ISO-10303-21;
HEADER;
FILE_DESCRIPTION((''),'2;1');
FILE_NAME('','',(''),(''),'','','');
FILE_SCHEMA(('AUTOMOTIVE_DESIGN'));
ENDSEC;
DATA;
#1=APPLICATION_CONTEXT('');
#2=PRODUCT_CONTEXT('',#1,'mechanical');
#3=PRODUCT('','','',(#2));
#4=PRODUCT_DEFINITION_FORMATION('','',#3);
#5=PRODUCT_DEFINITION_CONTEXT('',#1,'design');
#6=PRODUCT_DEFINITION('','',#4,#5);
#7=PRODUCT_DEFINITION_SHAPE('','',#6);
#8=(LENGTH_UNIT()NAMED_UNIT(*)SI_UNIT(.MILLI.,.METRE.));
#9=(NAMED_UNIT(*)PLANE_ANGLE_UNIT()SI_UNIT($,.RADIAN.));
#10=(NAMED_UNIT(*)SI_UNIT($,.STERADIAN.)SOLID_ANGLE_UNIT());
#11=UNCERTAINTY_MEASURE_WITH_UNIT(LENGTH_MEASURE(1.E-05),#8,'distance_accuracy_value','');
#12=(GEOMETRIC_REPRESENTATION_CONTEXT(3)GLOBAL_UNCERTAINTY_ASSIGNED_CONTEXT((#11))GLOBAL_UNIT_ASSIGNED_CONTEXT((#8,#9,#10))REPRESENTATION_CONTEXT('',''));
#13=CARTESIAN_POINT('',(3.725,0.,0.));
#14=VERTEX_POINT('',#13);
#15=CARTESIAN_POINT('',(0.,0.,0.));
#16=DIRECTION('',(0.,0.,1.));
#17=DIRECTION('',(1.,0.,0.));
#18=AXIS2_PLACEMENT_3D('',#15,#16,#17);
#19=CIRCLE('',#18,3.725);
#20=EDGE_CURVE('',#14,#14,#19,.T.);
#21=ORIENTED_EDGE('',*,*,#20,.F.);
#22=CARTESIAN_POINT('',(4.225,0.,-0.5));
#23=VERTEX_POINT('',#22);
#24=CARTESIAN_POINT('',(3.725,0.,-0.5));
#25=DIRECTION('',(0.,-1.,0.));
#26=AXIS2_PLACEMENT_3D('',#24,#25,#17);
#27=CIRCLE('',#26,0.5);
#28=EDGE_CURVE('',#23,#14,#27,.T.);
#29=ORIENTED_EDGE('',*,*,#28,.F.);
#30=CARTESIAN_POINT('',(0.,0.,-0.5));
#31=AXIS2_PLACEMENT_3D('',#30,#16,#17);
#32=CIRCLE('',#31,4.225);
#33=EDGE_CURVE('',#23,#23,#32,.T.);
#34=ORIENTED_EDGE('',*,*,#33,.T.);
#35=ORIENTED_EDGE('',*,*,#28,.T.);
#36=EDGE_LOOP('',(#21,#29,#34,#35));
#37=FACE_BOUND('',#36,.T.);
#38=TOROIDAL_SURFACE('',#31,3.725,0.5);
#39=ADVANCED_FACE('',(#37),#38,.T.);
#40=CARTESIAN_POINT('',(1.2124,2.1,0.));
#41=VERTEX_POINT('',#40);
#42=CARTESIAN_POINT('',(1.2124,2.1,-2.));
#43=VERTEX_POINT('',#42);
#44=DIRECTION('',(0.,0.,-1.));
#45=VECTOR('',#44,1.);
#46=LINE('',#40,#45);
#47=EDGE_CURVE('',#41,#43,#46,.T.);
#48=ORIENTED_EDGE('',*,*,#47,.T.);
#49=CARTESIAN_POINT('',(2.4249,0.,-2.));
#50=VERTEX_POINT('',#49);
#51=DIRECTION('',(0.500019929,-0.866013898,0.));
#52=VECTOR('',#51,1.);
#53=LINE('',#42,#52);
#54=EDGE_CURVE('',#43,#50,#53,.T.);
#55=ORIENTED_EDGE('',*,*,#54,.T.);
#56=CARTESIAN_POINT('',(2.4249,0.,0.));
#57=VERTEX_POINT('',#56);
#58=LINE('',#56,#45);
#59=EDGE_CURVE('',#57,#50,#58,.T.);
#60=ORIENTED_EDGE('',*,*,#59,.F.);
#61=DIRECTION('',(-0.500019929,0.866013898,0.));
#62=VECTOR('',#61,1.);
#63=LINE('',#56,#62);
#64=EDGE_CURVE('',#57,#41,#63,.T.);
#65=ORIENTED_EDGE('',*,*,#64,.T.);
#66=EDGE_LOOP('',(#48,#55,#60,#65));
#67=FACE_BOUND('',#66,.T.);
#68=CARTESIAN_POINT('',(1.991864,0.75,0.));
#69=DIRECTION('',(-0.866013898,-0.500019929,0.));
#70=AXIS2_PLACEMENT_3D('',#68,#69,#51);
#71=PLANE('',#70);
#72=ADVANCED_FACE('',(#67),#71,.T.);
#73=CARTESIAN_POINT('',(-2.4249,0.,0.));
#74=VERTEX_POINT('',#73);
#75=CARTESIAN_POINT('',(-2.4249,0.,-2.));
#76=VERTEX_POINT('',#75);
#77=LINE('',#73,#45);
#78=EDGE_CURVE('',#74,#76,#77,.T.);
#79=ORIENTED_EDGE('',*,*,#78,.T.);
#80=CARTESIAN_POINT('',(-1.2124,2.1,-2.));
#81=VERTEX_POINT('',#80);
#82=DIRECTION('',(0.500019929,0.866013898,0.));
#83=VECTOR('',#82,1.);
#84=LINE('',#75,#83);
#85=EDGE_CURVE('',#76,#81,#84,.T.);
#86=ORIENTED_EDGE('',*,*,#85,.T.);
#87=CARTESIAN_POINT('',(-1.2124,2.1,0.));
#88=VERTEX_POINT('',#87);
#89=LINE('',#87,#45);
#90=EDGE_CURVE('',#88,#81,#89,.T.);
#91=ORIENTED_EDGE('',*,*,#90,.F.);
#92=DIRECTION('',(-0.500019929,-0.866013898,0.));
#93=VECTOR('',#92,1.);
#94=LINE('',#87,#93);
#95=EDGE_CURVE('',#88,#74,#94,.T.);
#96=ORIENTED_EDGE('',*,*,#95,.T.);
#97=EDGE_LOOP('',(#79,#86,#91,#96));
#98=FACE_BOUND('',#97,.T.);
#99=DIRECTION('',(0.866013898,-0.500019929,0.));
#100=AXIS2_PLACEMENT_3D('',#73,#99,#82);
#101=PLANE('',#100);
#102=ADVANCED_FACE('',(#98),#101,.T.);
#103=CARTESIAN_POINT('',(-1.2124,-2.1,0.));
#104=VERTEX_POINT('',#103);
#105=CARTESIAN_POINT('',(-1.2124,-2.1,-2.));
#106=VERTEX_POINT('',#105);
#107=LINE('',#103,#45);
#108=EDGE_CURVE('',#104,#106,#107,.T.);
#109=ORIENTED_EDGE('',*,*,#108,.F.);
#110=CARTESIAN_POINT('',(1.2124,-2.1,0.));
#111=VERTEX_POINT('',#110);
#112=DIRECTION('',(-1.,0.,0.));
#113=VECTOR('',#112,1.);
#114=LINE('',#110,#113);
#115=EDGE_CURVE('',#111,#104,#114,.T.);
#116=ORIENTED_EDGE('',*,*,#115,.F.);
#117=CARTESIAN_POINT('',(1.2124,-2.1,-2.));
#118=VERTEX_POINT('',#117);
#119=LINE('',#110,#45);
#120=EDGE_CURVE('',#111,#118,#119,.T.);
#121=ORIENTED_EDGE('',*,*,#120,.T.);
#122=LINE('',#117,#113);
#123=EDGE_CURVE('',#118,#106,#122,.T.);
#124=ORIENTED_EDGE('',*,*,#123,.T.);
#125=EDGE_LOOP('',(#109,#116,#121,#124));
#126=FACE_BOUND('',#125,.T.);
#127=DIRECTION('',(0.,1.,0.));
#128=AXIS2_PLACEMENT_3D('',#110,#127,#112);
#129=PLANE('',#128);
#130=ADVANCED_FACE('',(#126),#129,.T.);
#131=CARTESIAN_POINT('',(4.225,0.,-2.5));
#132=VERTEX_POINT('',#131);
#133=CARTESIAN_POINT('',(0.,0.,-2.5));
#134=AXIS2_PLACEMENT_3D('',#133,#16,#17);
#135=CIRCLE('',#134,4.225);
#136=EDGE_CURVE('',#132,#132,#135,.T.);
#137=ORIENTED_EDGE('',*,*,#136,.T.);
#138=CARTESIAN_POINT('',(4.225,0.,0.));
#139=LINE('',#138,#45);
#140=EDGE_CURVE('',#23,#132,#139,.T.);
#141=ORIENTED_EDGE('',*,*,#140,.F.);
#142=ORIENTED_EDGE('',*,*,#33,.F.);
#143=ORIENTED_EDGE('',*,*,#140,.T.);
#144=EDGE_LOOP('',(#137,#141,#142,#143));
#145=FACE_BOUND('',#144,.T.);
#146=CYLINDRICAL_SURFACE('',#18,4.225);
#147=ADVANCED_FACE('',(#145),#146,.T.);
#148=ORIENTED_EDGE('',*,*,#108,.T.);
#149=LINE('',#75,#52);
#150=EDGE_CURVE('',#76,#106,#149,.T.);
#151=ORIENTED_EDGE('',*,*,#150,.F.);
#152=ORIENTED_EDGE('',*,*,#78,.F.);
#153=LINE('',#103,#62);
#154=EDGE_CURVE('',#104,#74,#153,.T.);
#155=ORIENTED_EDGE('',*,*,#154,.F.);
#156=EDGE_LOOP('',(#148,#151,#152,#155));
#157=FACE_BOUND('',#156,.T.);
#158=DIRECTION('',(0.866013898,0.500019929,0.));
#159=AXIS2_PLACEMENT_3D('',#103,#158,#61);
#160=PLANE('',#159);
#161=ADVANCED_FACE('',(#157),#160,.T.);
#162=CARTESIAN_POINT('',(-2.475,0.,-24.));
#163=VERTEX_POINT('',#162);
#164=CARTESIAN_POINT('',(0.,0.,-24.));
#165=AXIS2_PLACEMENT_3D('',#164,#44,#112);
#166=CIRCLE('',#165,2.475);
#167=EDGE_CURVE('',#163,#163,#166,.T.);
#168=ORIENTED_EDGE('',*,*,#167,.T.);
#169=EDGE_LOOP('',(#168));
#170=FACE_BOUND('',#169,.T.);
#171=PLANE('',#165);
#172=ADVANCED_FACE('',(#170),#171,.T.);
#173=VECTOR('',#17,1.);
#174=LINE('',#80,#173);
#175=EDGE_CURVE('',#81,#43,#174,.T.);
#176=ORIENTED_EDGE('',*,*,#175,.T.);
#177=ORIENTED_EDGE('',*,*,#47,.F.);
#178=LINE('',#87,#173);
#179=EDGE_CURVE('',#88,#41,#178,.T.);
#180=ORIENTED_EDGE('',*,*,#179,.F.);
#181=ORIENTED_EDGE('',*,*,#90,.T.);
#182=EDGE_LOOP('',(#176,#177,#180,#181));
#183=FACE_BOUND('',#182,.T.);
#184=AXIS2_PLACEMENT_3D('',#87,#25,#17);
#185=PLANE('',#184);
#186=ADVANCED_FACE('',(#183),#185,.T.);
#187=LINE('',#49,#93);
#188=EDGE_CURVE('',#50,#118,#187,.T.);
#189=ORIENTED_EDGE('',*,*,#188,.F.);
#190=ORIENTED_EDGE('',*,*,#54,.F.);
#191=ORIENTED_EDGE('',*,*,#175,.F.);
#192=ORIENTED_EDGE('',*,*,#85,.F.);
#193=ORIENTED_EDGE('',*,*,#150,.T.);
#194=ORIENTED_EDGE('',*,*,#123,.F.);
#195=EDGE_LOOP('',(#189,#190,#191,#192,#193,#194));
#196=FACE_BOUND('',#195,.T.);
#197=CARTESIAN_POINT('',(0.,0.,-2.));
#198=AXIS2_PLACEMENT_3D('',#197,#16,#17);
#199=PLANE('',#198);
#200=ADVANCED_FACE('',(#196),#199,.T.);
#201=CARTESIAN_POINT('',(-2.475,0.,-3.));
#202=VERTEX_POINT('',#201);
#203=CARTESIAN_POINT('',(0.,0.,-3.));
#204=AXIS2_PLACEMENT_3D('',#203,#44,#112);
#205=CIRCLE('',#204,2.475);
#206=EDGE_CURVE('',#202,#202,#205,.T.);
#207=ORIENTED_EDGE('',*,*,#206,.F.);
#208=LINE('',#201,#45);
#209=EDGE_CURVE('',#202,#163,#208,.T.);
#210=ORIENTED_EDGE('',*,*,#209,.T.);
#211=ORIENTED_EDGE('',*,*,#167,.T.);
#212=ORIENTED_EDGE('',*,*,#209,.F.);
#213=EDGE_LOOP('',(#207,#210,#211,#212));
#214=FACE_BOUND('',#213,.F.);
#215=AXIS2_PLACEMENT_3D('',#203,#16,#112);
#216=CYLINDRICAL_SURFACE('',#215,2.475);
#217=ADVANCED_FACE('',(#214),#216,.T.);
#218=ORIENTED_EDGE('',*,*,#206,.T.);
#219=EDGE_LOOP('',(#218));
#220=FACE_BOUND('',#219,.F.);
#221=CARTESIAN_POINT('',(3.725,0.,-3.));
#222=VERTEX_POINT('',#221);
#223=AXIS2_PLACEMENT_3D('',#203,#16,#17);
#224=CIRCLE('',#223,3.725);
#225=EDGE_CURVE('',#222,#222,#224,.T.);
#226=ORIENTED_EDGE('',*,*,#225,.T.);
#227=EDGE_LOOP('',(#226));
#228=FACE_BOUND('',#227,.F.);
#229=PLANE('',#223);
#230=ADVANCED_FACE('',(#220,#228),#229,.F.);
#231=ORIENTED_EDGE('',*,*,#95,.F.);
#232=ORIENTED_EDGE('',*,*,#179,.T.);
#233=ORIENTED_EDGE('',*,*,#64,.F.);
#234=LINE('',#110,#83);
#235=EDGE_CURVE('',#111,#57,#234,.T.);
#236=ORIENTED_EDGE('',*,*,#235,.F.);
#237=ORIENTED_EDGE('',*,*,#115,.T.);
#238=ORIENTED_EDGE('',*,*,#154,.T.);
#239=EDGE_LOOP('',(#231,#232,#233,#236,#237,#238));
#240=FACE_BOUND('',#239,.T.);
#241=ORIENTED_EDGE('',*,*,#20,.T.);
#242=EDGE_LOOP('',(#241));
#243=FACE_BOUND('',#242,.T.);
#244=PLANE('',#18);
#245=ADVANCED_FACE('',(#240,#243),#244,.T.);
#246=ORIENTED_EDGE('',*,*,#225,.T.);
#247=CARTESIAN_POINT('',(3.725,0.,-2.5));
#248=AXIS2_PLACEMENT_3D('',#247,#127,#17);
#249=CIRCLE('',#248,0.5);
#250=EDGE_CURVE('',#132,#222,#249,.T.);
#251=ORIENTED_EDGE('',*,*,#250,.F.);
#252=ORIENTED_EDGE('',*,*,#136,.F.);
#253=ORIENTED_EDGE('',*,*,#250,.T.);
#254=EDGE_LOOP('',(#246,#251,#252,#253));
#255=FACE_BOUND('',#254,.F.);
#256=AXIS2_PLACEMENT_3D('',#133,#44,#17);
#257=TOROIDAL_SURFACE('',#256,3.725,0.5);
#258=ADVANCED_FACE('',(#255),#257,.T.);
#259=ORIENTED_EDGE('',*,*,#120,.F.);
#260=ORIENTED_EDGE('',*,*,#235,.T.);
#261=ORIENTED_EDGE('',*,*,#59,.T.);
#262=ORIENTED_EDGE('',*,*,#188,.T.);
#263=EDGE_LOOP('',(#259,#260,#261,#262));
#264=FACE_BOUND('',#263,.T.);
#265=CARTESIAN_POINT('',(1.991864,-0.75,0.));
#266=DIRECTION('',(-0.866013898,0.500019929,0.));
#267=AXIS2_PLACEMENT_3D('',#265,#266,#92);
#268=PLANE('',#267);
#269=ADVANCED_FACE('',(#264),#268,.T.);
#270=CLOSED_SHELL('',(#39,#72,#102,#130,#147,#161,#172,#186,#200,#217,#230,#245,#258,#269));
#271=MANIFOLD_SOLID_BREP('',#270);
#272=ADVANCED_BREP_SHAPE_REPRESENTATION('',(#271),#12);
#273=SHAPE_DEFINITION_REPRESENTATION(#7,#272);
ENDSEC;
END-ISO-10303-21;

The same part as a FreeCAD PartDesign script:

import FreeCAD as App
import Part
import Sketcher
Q = App.Units.Quantity


def edges_at(feature, points):
    """Names of the edges that pass closest to the given points."""
    edges = feature.Shape.Edges
    near = lambda p: min(range(len(edges)), key=lambda i: edges[i].distToShape(Part.Vertex(*p))[0])
    return sorted({f"Edge{near(p) + 1}" for p in points})


def add_polygon(sketch, points):
    """Adds a closed chain of lines whose ends are joined by coincident constraints."""
    first, n = sketch.GeometryCount, len(points)
    for a, b in zip(points, points[1:] + points[:1]):
        sketch.addGeometry(Part.LineSegment(App.Vector(*a, 0), App.Vector(*b, 0)), False)
    for i in range(n):
        sketch.addConstraint(Sketcher.Constraint("Coincident", first + i, 2, first + (i + 1) % n, 1))

doc = App.newDocument("Part")
params = doc.addObject("Spreadsheet::Sheet", "Params")
for row, (alias, value) in enumerate([
    ("sketch1_diameter", "8.45 mm"),
    ("pad1_length", "3 mm"),
    ("sketch2_diameter", "4.95 mm"),
    ("pad2_length", "40 mm"),
    ("pocket1_length", "2 mm"),
    ("fillet_radius", "0.5 mm"),
    ("sketch4_diameter", "4.95 mm"),
    ("pocket2_length", "19 mm"),
], start=1):
    params.set(f"A{row}", alias)
    params.set(f"B{row}", "=" + value)
    params.setAlias(f"B{row}", alias)

body = doc.addObject("PartDesign::Body", "Body")

# Sketch on XY plane
sketch1 = doc.addObject("Sketcher::SketchObject", "Sketch")
body.addObject(sketch1)
sketch1.AttachmentSupport = (doc.XY_Plane, [""])
sketch1.MapMode = "FlatFace"
sketch1.addGeometry(Part.Circle(App.Vector(0, 0, 0), App.Vector(0, 0, 1), 4.2), False)
sketch1.addConstraint(Sketcher.Constraint("Coincident", 0, 3, -1, 1))
sketch1.addConstraint(Sketcher.Constraint("Diameter", 0, Q("8.45 mm")))
sketch1.setExpression("Constraints[1]", "Params.sketch1_diameter")
pad1 = doc.addObject("PartDesign::Pad", "Pad")
body.addObject(pad1)
pad1.Profile = sketch1
pad1.setExpression("Length", "Params.pad1_length")
pad1.Reversed = True

# Sketch on XY plane
sketch2 = doc.addObject("Sketcher::SketchObject", "Sketch001")
body.addObject(sketch2)
sketch2.AttachmentSupport = (doc.XY_Plane, [""])
sketch2.MapMode = "FlatFace"
sketch2.AttachmentOffset = App.Placement(App.Vector(0, 0, -3), App.Rotation())
sketch2.addGeometry(Part.Circle(App.Vector(0, 0, 0), App.Vector(0, 0, 1), 2.5), False)
sketch2.addConstraint(Sketcher.Constraint("Coincident", 0, 3, -1, 1))
sketch2.addConstraint(Sketcher.Constraint("Diameter", 0, Q("4.95 mm")))
sketch2.setExpression("Constraints[1]", "Params.sketch2_diameter")
pad2 = doc.addObject("PartDesign::Pad", "Pad001")
body.addObject(pad2)
pad2.Profile = sketch2
pad2.setExpression("Length", "Params.pad2_length")
pad2.Reversed = True

# Sketch on XY plane
sketch3 = doc.addObject("Sketcher::SketchObject", "Sketch002")
body.addObject(sketch3)
sketch3.AttachmentSupport = (doc.XY_Plane, [""])
sketch3.MapMode = "FlatFace"
add_polygon(sketch3, [(-1.2, -2.1), (1.2, -2.1), (2.4, 0), (1.2, 2.1), (-1.2, 2.1), (-2.4, 0)])  # lines 0-5
sketch3.addConstraint(Sketcher.Constraint("Horizontal", 0))
sketch3.addConstraint(Sketcher.Constraint("Horizontal", 3))
sketch3.addConstraint(Sketcher.Constraint("Symmetric", 0, 2, 3, 2, -1, 1))
sketch3.addConstraint(Sketcher.Constraint("Symmetric", 1, 2, 4, 2, -1, 1))
sketch3.addConstraint(Sketcher.Constraint("PointOnObject", 1, 2, -1))
sketch3.addConstraint(Sketcher.Constraint("Parallel", 2, 5))
sketch3.addConstraint(Sketcher.Constraint("Vertical", 0, 2, 2, 2))
sketch3.addConstraint(Sketcher.Constraint("DistanceY", 0, 2, -1, 1, Q("2.1 mm")))
sketch3.addConstraint(Sketcher.Constraint("Distance", 1, Q("2.425 mm")))
sketch3.addConstraint(Sketcher.Constraint("DistanceX", 0, 1, 0, 2, Q("2.4248 mm")))
pocket1 = doc.addObject("PartDesign::Pocket", "Pocket")
body.addObject(pocket1)
pocket1.Profile = sketch3
pocket1.setExpression("Length", "Params.pocket1_length")
doc.recompute()

fillet = doc.addObject("PartDesign::Fillet", "Fillet")
body.addObject(fillet)
fillet.Base = (pocket1, edges_at(pocket1, [(-4.225, 0, 0), (-4.225, 0, -3)]))
fillet.setExpression("Radius", "Params.fillet_radius")

# Sketch on XY plane
sketch4 = doc.addObject("Sketcher::SketchObject", "Sketch003")
body.addObject(sketch4)
sketch4.AttachmentSupport = (doc.XY_Plane, [""])
sketch4.MapMode = "FlatFace"
sketch4.AttachmentOffset = App.Placement(App.Vector(0, 0, -43), App.Rotation())
sketch4.addGeometry(Part.Circle(App.Vector(0, 0, 0), App.Vector(0, 0, 1), 2.5), False)
sketch4.addConstraint(Sketcher.Constraint("Coincident", 0, 3, -1, 1))
sketch4.addConstraint(Sketcher.Constraint("Diameter", 0, Q("4.95 mm")))
sketch4.setExpression("Constraints[1]", "Params.sketch4_diameter")
pocket2 = doc.addObject("PartDesign::Pocket", "Pocket001")
body.addObject(pocket2)
pocket2.Profile = sketch4
pocket2.setExpression("Length", "Params.pocket2_length")
pocket2.Reversed = True

doc.recompute()
